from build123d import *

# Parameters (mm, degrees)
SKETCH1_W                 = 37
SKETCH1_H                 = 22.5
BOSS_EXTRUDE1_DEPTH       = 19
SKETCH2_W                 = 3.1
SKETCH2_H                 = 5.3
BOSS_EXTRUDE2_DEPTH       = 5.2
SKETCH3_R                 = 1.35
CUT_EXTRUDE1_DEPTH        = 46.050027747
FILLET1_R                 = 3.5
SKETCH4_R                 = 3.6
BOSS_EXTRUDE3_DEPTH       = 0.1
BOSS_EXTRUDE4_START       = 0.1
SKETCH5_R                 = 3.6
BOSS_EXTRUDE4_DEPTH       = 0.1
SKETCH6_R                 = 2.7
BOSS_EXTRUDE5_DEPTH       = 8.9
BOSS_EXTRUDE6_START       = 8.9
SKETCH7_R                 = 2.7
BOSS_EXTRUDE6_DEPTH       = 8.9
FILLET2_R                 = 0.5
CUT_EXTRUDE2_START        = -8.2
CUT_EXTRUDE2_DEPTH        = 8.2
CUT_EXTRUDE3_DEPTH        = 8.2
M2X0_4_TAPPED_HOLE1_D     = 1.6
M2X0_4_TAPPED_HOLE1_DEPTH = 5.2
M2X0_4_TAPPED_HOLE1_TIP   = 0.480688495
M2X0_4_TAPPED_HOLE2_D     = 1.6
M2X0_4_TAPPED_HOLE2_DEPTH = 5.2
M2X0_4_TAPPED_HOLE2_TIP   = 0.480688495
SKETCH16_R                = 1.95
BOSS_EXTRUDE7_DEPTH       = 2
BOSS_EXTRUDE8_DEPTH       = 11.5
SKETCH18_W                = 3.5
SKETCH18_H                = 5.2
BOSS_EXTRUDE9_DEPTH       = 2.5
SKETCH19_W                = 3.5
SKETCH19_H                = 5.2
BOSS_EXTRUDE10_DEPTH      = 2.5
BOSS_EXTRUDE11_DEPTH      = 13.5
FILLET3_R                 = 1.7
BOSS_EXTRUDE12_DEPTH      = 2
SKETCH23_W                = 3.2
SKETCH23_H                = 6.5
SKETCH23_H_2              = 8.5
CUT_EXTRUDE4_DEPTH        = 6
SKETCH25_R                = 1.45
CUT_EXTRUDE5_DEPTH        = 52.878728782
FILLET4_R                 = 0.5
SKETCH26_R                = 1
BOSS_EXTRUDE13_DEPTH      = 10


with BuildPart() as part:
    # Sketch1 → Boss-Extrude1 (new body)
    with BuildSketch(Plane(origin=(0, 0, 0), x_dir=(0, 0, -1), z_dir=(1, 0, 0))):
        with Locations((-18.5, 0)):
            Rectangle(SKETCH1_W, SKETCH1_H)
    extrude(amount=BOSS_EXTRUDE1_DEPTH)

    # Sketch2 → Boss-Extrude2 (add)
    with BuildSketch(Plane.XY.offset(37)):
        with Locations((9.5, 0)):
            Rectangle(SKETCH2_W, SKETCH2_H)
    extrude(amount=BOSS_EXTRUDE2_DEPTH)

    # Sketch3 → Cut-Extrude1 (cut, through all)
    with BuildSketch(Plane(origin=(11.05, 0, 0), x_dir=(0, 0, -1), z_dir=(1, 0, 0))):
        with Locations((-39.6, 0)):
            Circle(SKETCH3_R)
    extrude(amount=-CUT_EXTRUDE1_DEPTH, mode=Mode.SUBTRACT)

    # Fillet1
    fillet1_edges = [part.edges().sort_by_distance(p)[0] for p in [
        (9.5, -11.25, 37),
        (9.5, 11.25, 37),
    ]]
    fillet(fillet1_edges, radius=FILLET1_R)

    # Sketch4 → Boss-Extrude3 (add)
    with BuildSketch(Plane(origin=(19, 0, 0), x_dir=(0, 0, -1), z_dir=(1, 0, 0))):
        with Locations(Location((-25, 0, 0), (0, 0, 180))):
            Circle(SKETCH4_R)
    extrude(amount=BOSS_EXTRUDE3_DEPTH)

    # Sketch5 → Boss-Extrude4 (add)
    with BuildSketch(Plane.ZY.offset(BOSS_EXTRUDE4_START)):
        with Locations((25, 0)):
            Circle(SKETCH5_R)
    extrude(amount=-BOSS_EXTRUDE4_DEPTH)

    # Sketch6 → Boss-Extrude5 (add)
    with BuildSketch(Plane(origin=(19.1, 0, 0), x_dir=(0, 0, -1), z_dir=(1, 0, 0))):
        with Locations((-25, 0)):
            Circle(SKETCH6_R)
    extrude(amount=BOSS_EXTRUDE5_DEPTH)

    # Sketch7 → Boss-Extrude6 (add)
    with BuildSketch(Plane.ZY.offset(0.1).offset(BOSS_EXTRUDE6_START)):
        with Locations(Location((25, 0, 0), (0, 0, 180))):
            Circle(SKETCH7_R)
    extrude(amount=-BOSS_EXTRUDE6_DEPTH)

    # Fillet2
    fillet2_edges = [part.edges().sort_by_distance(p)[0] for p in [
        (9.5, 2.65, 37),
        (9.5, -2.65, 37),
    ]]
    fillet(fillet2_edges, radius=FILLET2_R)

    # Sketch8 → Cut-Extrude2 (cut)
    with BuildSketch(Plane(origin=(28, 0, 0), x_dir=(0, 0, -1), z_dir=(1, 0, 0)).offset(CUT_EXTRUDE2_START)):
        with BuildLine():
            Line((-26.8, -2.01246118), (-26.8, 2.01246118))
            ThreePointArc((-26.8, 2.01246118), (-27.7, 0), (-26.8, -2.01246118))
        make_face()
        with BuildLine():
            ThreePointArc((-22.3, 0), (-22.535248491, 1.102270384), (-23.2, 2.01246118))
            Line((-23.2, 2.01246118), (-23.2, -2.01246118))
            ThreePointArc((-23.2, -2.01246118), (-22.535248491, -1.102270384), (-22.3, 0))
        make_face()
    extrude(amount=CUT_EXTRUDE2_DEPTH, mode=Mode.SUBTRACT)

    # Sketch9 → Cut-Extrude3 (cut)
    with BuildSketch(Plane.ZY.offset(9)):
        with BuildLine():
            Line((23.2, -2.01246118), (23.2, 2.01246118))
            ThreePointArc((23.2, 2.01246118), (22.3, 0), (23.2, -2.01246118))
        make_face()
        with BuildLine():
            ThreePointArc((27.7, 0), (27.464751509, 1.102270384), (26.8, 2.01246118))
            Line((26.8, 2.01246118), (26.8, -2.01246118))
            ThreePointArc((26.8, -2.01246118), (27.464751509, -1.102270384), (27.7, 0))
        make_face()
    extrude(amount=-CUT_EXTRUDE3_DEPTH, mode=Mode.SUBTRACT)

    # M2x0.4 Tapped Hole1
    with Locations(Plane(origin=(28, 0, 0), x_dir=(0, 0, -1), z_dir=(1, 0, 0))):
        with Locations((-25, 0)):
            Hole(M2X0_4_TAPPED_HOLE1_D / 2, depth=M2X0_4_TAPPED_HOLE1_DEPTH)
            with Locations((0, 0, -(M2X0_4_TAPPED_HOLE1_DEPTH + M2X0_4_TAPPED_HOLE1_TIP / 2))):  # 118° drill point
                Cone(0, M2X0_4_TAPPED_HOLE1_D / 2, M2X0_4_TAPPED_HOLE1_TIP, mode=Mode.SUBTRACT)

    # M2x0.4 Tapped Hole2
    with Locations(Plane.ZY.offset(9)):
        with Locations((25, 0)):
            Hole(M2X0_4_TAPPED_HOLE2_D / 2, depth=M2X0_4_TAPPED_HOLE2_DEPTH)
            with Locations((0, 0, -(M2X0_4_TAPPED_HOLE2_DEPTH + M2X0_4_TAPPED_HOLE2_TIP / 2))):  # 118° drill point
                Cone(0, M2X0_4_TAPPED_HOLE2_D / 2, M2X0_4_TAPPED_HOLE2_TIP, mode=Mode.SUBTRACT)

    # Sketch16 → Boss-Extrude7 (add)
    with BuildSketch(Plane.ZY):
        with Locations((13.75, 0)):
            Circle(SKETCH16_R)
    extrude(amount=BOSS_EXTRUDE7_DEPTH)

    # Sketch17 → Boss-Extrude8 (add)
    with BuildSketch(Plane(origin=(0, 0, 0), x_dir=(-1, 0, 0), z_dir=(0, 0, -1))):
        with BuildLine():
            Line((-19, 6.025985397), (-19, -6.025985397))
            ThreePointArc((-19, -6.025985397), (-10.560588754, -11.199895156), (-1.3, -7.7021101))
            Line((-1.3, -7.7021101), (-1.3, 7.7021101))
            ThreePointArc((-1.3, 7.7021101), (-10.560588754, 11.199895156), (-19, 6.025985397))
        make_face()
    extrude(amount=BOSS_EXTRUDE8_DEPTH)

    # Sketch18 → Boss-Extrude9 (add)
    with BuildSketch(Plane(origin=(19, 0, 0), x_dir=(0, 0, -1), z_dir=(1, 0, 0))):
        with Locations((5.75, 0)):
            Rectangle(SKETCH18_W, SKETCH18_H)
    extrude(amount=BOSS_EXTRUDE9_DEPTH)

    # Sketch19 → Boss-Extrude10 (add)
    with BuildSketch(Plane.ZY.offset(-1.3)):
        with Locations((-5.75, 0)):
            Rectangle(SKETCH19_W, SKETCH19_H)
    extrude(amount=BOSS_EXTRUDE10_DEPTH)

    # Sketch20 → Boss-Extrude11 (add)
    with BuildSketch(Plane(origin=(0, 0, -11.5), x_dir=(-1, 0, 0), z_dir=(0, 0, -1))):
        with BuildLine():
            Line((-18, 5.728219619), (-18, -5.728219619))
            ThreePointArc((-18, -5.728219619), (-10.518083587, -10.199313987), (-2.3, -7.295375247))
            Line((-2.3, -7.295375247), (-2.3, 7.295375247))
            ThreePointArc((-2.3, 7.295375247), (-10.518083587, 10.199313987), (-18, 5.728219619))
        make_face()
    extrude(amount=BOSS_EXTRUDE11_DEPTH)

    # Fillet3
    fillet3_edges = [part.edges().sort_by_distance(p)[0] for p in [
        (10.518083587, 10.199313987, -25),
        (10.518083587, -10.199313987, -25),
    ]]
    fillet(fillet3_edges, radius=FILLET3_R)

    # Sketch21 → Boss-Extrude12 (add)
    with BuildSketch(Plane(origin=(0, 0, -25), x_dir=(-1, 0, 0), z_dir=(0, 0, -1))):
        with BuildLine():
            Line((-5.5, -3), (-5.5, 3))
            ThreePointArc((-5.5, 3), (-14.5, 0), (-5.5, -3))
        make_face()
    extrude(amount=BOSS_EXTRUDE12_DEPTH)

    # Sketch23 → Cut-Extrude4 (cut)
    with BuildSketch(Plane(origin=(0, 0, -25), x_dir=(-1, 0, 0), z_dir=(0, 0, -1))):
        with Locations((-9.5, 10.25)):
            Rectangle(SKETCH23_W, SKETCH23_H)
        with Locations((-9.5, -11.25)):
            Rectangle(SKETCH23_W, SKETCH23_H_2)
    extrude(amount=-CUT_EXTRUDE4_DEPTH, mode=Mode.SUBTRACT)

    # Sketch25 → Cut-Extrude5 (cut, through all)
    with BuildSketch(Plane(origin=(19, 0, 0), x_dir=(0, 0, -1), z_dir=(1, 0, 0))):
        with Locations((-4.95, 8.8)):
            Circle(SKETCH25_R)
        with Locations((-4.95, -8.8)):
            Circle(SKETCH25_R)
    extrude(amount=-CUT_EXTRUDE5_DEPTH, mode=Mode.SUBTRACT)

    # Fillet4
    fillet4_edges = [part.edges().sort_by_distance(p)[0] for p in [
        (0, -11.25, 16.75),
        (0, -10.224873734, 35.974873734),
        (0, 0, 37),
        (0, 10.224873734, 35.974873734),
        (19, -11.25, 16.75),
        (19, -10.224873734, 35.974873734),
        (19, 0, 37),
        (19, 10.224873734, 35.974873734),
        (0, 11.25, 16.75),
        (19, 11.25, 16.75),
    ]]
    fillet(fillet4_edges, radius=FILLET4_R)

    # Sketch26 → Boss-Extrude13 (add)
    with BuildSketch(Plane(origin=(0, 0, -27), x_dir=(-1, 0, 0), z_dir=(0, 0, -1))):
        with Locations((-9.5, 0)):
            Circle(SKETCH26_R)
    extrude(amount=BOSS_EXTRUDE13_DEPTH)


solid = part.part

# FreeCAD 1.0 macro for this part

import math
import FreeCAD as App
import Part
import Sketcher

V = App.Vector
Q = App.Units.Quantity


def edges_at(feature, points):
    """Names of the edges that pass closest to the given points."""
    edges = feature.Shape.Edges
    near = lambda p: min(range(len(edges)), key=lambda i: edges[i].distToShape(Part.Vertex(*p))[0])
    return sorted({f"Edge{near(p) + 1}" for p in points})

doc = App.newDocument("Part")
params = doc.addObject("Spreadsheet::Sheet", "Params")
for row, (alias, value) in enumerate([
    ("sketch1_height", "37 mm"),
    ("sketch1_width", "22.5 mm"),
    ("pad1_length", "19 mm"),
    ("sketch2_width", "3.1 mm"),
    ("sketch2_height", "5.3 mm"),
    ("pad2_length", "5.2 mm"),
    ("sketch3_diameter", "2.7 mm"),
    ("fillet_radius", "3.5 mm"),
    ("sketch4_diameter", "7.2 mm"),
    ("pad3_length", "0.1 mm"),
    ("sketch5_diameter", "7.2 mm"),
    ("pad4_length", "0.1 mm"),
    ("sketch6_diameter", "5.4 mm"),
    ("pad5_length", "8.9 mm"),
    ("sketch7_diameter", "5.4 mm"),
    ("pad6_length", "8.9 mm"),
    ("fillet2_radius", "0.5 mm"),
    ("sketch8_radius", "2.7 mm"),
    ("pocket2_length", "8.2 mm"),
    ("sketch9_radius", "2.7 mm"),
    ("pocket3_length", "8.2 mm"),
    ("sketch10_diameter", "1.6 mm"),
    ("hole_diameter", "1.6 mm"),
    ("hole_depth", "5.2 mm"),
    ("sketch11_diameter", "1.6 mm"),
    ("hole2_diameter", "1.6 mm"),
    ("hole2_depth", "5.2 mm"),
    ("sketch12_diameter", "3.9 mm"),
    ("pad7_length", "2 mm"),
    ("sketch13_radius", "11.25 mm"),
    ("pad8_length", "11.5 mm"),
    ("sketch14_width", "5.2 mm"),
    ("sketch14_height", "3.5 mm"),
    ("pad9_length", "2.5 mm"),
    ("sketch15_width", "5.2 mm"),
    ("sketch15_height", "3.5 mm"),
    ("pad10_length", "2.5 mm"),
    ("sketch16_radius", "10.25 mm"),
    ("pad11_length", "13.5 mm"),
    ("fillet3_radius", "1.7 mm"),
    ("sketch17_radius", "5 mm"),
    ("sketch17_height", "6 mm"),
    ("pad12_length", "2 mm"),
    ("sketch18_width", "3.2 mm"),
    ("sketch18_height", "6.5 mm"),
    ("sketch18_height2", "8.5 mm"),
    ("pocket4_length", "6 mm"),
    ("sketch19_diameter", "2.9 mm"),
    ("fillet4_radius", "0.5 mm"),
    ("sketch20_diameter", "2 mm"),
    ("pad13_length", "10 mm"),
], start=1):
    params.set(f"A{row}", alias)
    params.set(f"B{row}", "=" + value)
    params.setAlias(f"B{row}", alias)

body = doc.addObject("PartDesign::Body", "Body")

# Sketch on YZ plane
sketch1 = body.newObject("Sketcher::SketchObject", "Sketch")
sketch1.AttachmentSupport = (doc.getObject("YZ_Plane"), [""])
sketch1.MapMode = "FlatFace"
sketch1.addGeometry([
    Part.LineSegment(V(11.25, 37, 0), V(-11.25, 37, 0)),
    Part.LineSegment(V(-11.25, 37, 0), V(-11.25, 0, 0)),
    Part.LineSegment(V(-11.25, 0, 0), V(11.25, 0, 0)),
    Part.LineSegment(V(11.25, 0, 0), V(11.25, 37, 0)),
], False)
sketch1.addConstraint([
    Sketcher.Constraint("Coincident", 0, 2, 1, 1),
    Sketcher.Constraint("Coincident", 1, 2, 2, 1),
    Sketcher.Constraint("Coincident", 2, 2, 3, 1),
    Sketcher.Constraint("Coincident", 3, 2, 0, 1),
    Sketcher.Constraint("Horizontal", 0),
    Sketcher.Constraint("Vertical", 1),
    Sketcher.Constraint("Horizontal", 2),
    Sketcher.Constraint("Vertical", 3),
    Sketcher.Constraint("Symmetric", 1, 2, 2, 2, -1, 1),
    Sketcher.Constraint("DistanceY", 1, 2, 1, 1, Q("37 mm")),
    Sketcher.Constraint("DistanceX", 0, 2, 0, 1, Q("22.5 mm")),
])
sketch1.setExpression("Constraints[9]", "Params.sketch1_height")
sketch1.setExpression("Constraints[10]", "Params.sketch1_width")
pad1 = body.newObject("PartDesign::Pad", "Pad")
pad1.Profile = sketch1
pad1.setExpression("Length", "Params.pad1_length")

# Sketch on XY plane
sketch2 = body.newObject("Sketcher::SketchObject", "Sketch001")
sketch2.AttachmentSupport = (doc.getObject("XY_Plane"), [""])
sketch2.MapMode = "FlatFace"
sketch2.AttachmentOffset = App.Placement(V(0, 0, 37), App.Rotation())
sketch2.addGeometry([
    Part.LineSegment(V(7.95, 2.65, 0), V(7.95, -2.65, 0)),
    Part.LineSegment(V(7.95, -2.65, 0), V(11.05, -2.65, 0)),
    Part.LineSegment(V(11.05, -2.65, 0), V(11.05, 2.65, 0)),
    Part.LineSegment(V(11.05, 2.65, 0), V(7.95, 2.65, 0)),
], False)
sketch2.addConstraint([
    Sketcher.Constraint("Coincident", 0, 2, 1, 1),
    Sketcher.Constraint("Coincident", 1, 2, 2, 1),
    Sketcher.Constraint("Coincident", 2, 2, 3, 1),
    Sketcher.Constraint("Coincident", 3, 2, 0, 1),
    Sketcher.Constraint("Vertical", 0),
    Sketcher.Constraint("Horizontal", 1),
    Sketcher.Constraint("Vertical", 2),
    Sketcher.Constraint("Horizontal", 3),
    Sketcher.Constraint("DistanceX", 1, 1, 1, 2, Q("3.1 mm")),
    Sketcher.Constraint("DistanceY", 0, 2, 0, 1, Q("5.3 mm")),
    Sketcher.Constraint("DistanceX", -1, 1, 0, 2, Q("7.95 mm")),
    Sketcher.Constraint("DistanceY", 0, 2, -1, 1, Q("2.65 mm")),
])
sketch2.setExpression("Constraints[8]", "Params.sketch2_width")
sketch2.setExpression("Constraints[9]", "Params.sketch2_height")
pad2 = body.newObject("PartDesign::Pad", "Pad001")
pad2.Profile = sketch2
pad2.setExpression("Length", "Params.pad2_length")

# Sketch on YZ plane
sketch3 = body.newObject("Sketcher::SketchObject", "Sketch002")
sketch3.AttachmentSupport = (doc.getObject("YZ_Plane"), [""])
sketch3.MapMode = "FlatFace"
sketch3.AttachmentOffset = App.Placement(V(0, 0, 11.05), App.Rotation())
sketch3.addGeometry(Part.Circle(V(0, 39.6, 0), V(0, 0, 1), 1.35), False)
sketch3.addConstraint([
    Sketcher.Constraint("PointOnObject", 0, 3, -2),
    Sketcher.Constraint("Diameter", 0, Q("2.7 mm")),
    Sketcher.Constraint("DistanceY", -1, 1, 0, 3, Q("39.6 mm")),
])
sketch3.setExpression("Constraints[1]", "Params.sketch3_diameter")
pocket1 = body.newObject("PartDesign::Pocket", "Pocket")
pocket1.Profile = sketch3
pocket1.Type = "ThroughAll"
doc.recompute()

fillet = body.newObject("PartDesign::Fillet", "Fillet")
fillet.Base = (pocket1, edges_at(pocket1, [(9.5, -11.25, 37), (9.5, 11.25, 37)]))
fillet.setExpression("Radius", "Params.fillet_radius")

# Sketch on YZ plane
sketch4 = body.newObject("Sketcher::SketchObject", "Sketch003")
sketch4.AttachmentSupport = (doc.getObject("YZ_Plane"), [""])
sketch4.MapMode = "FlatFace"
sketch4.AttachmentOffset = App.Placement(V(0, 0, 19), App.Rotation())
sketch4.addGeometry(Part.Circle(V(0, 25, 0), V(0, 0, 1), 3.6), False)
sketch4.addConstraint([
    Sketcher.Constraint("PointOnObject", 0, 3, -2),
    Sketcher.Constraint("Diameter", 0, Q("7.2 mm")),
    Sketcher.Constraint("DistanceY", -1, 1, 0, 3, Q("25 mm")),
])
sketch4.setExpression("Constraints[1]", "Params.sketch4_diameter")
pad3 = body.newObject("PartDesign::Pad", "Pad002")
pad3.Profile = sketch4
pad3.setExpression("Length", "Params.pad3_length")

# Sketch on YZ plane
sketch5 = body.newObject("Sketcher::SketchObject", "Sketch004")
sketch5.AttachmentSupport = (doc.getObject("YZ_Plane"), [""])
sketch5.MapMode = "FlatFace"
sketch5.AttachmentOffset = App.Placement(V(0, 0, -0.1), App.Rotation())
sketch5.addGeometry(Part.Circle(V(0, 25, 0), V(0, 0, 1), 3.6), False)
sketch5.addConstraint([
    Sketcher.Constraint("PointOnObject", 0, 3, -2),
    Sketcher.Constraint("Diameter", 0, Q("7.2 mm")),
    Sketcher.Constraint("DistanceY", -1, 1, 0, 3, Q("25 mm")),
])
sketch5.setExpression("Constraints[1]", "Params.sketch5_diameter")
pad4 = body.newObject("PartDesign::Pad", "Pad003")
pad4.Profile = sketch5
pad4.setExpression("Length", "Params.pad4_length")

# Sketch on YZ plane
sketch6 = body.newObject("Sketcher::SketchObject", "Sketch005")
sketch6.AttachmentSupport = (doc.getObject("YZ_Plane"), [""])
sketch6.MapMode = "FlatFace"
sketch6.AttachmentOffset = App.Placement(V(0, 0, 19.1), App.Rotation())
sketch6.addGeometry(Part.Circle(V(0, 25, 0), V(0, 0, 1), 2.7), False)
sketch6.addConstraint([
    Sketcher.Constraint("PointOnObject", 0, 3, -2),
    Sketcher.Constraint("Diameter", 0, Q("5.4 mm")),
    Sketcher.Constraint("DistanceY", -1, 1, 0, 3, Q("25 mm")),
])
sketch6.setExpression("Constraints[1]", "Params.sketch6_diameter")
pad5 = body.newObject("PartDesign::Pad", "Pad004")
pad5.Profile = sketch6
pad5.setExpression("Length", "Params.pad5_length")

# Sketch on YZ plane
sketch7 = body.newObject("Sketcher::SketchObject", "Sketch006")
sketch7.AttachmentSupport = (doc.getObject("YZ_Plane"), [""])
sketch7.MapMode = "FlatFace"
sketch7.AttachmentOffset = App.Placement(V(0, 0, -9), App.Rotation())
sketch7.addGeometry(Part.Circle(V(0, 25, 0), V(0, 0, 1), 2.7), False)
sketch7.addConstraint([
    Sketcher.Constraint("PointOnObject", 0, 3, -2),
    Sketcher.Constraint("Diameter", 0, Q("5.4 mm")),
    Sketcher.Constraint("DistanceY", -1, 1, 0, 3, Q("25 mm")),
])
sketch7.setExpression("Constraints[1]", "Params.sketch7_diameter")
pad6 = body.newObject("PartDesign::Pad", "Pad005")
pad6.Profile = sketch7
pad6.setExpression("Length", "Params.pad6_length")
doc.recompute()

fillet2 = body.newObject("PartDesign::Fillet", "Fillet001")
fillet2.Base = (pad6, edges_at(pad6, [(9.5, 2.65, 37), (9.5, -2.65, 37)]))
fillet2.setExpression("Radius", "Params.fillet2_radius")

# Sketch on YZ plane
sketch8 = body.newObject("Sketcher::SketchObject", "Sketch007")
sketch8.AttachmentSupport = (doc.getObject("YZ_Plane"), [""])
sketch8.MapMode = "FlatFace"
sketch8.AttachmentOffset = App.Placement(V(0, 0, 19.8), App.Rotation())
sketch8.addGeometry([
    Part.LineSegment(V(-2.012461, 26.8, 0), V(2.012461, 26.8, 0)),  # 0
    Part.ArcOfCircle(Part.Circle(V(0, 25, 0), V(0, 0, 1), 2.7), math.radians(41.810315), math.radians(138.189685)),  # 1
    Part.ArcOfCircle(Part.Circle(V(0, 25, 0), V(0, 0, 1), 2.7), math.radians(-90), math.radians(-41.810315)),  # 2
    Part.LineSegment(V(2.012461, 23.2, 0), V(-2.012461, 23.2, 0)),  # 3
    Part.ArcOfCircle(Part.Circle(V(0, 25, 0), V(0, 0, 1), 2.7), math.radians(-138.189685), math.radians(-90)),  # 4
], False)
sketch8.addConstraint([
    Sketcher.Constraint("Coincident", 0, 1, 1, 2),
    Sketcher.Constraint("Coincident", 1, 1, 0, 2),
    Sketcher.Constraint("Coincident", 2, 2, 3, 1),
    Sketcher.Constraint("Coincident", 3, 2, 4, 1),
    Sketcher.Constraint("Tangent", 4, 2, 2, 1),
    Sketcher.Constraint("Horizontal", 0),
    Sketcher.Constraint("Horizontal", 3),
    Sketcher.Constraint("Coincident", 2, 3, 1, 3),
    Sketcher.Constraint("Equal", 1, 2),
    Sketcher.Constraint("Equal", 2, 4),
    Sketcher.Constraint("PointOnObject", 1, 3, -2),
    Sketcher.Constraint("PointOnObject", 4, 2, -2),
    Sketcher.Constraint("Vertical", 1, 1, 2, 2),
    Sketcher.Constraint("Radius", 1, Q("2.7 mm")),
    Sketcher.Constraint("DistanceY", -1, 1, 1, 3, Q("25 mm")),
    Sketcher.Constraint("DistanceY", -1, 1, 0, 1, Q("26.8 mm")),
])
sketch8.setExpression("Constraints[13]", "Params.sketch8_radius")
pocket2 = body.newObject("PartDesign::Pocket", "Pocket001")
pocket2.Profile = sketch8
pocket2.setExpression("Length", "Params.pocket2_length")
pocket2.Reversed = True

# Sketch on YZ plane
sketch9 = body.newObject("Sketcher::SketchObject", "Sketch008")
sketch9.AttachmentSupport = (doc.getObject("YZ_Plane"), [""])
sketch9.MapMode = "FlatFace"
sketch9.AttachmentOffset = App.Placement(V(0, 0, -9), App.Rotation())
sketch9.addGeometry([
    Part.LineSegment(V(-2.012461, 23.2, 0), V(2.012461, 23.2, 0)),  # 0
    Part.ArcOfCircle(Part.Circle(V(0, 25, 0), V(0, 0, 1), 2.7), math.radians(-138.189685), math.radians(-41.810315)),  # 1
    Part.ArcOfCircle(Part.Circle(V(0, 25, 0), V(0, 0, 1), 2.7), math.radians(41.810315), math.radians(90)),  # 2
    Part.LineSegment(V(2.012461, 26.8, 0), V(-2.012461, 26.8, 0)),  # 3
    Part.ArcOfCircle(Part.Circle(V(0, 25, 0), V(0, 0, 1), 2.7), math.radians(90), math.radians(138.189685)),  # 4
], False)
sketch9.addConstraint([
    Sketcher.Constraint("Coincident", 0, 1, 1, 1),
    Sketcher.Constraint("Coincident", 1, 2, 0, 2),
    Sketcher.Constraint("Coincident", 2, 1, 3, 1),
    Sketcher.Constraint("Coincident", 3, 2, 4, 2),
    Sketcher.Constraint("Tangent", 4, 1, 2, 2),
    Sketcher.Constraint("Horizontal", 0),
    Sketcher.Constraint("Horizontal", 3),
    Sketcher.Constraint("Coincident", 2, 3, 1, 3),
    Sketcher.Constraint("Equal", 1, 2),
    Sketcher.Constraint("Equal", 2, 4),
    Sketcher.Constraint("PointOnObject", 1, 3, -2),
    Sketcher.Constraint("PointOnObject", 4, 1, -2),
    Sketcher.Constraint("Vertical", 1, 2, 2, 1),
    Sketcher.Constraint("Radius", 1, Q("2.7 mm")),
    Sketcher.Constraint("DistanceY", -1, 1, 1, 3, Q("25 mm")),
    Sketcher.Constraint("DistanceY", -1, 1, 0, 1, Q("23.2 mm")),
])
sketch9.setExpression("Constraints[13]", "Params.sketch9_radius")
pocket3 = body.newObject("PartDesign::Pocket", "Pocket002")
pocket3.Profile = sketch9
pocket3.setExpression("Length", "Params.pocket3_length")
pocket3.Reversed = True

# Sketch on YZ plane
sketch10 = body.newObject("Sketcher::SketchObject", "Sketch009")
sketch10.AttachmentSupport = (doc.getObject("YZ_Plane"), [""])
sketch10.MapMode = "FlatFace"
sketch10.AttachmentOffset = App.Placement(V(0, 0, 28), App.Rotation())
sketch10.addGeometry(Part.Circle(V(0, 25, 0), V(0, 0, 1), 0.8), False)
sketch10.addConstraint([
    Sketcher.Constraint("PointOnObject", 0, 3, -2),
    Sketcher.Constraint("Diameter", 0, Q("1.6 mm")),
    Sketcher.Constraint("DistanceY", -1, 1, 0, 3, Q("25 mm")),
])
sketch10.setExpression("Constraints[1]", "Params.sketch10_diameter")
doc.recompute()
hole = body.newObject("PartDesign::Hole", "Hole")
hole.Profile = sketch10
hole.ThreadType = "None"
hole.setExpression("Diameter", "Params.hole_diameter")
hole.DepthType = "Dimension"
hole.setExpression("Depth", "Params.hole_depth")
hole.DrillPoint = "Angled"
hole.DrillPointAngle = 118

# Sketch on YZ plane
sketch11 = body.newObject("Sketcher::SketchObject", "Sketch010")
sketch11.AttachmentSupport = (doc.getObject("YZ_Plane"), [""])
sketch11.MapMode = "FlatFace"
sketch11.AttachmentOffset = App.Placement(V(0, 0, -9), App.Rotation())
sketch11.addGeometry(Part.Circle(V(0, 25, 0), V(0, 0, 1), 0.8), False)
sketch11.addConstraint([
    Sketcher.Constraint("PointOnObject", 0, 3, -2),
    Sketcher.Constraint("Diameter", 0, Q("1.6 mm")),
    Sketcher.Constraint("DistanceY", -1, 1, 0, 3, Q("25 mm")),
])
sketch11.setExpression("Constraints[1]", "Params.sketch11_diameter")
doc.recompute()
hole2 = body.newObject("PartDesign::Hole", "Hole001")
hole2.Profile = sketch11
hole2.ThreadType = "None"
hole2.setExpression("Diameter", "Params.hole2_diameter")
hole2.DepthType = "Dimension"
hole2.setExpression("Depth", "Params.hole2_depth")
hole2.DrillPoint = "Angled"
hole2.DrillPointAngle = 118
hole2.Reversed = True

# Sketch on YZ plane
sketch12 = body.newObject("Sketcher::SketchObject", "Sketch011")
sketch12.AttachmentSupport = (doc.getObject("YZ_Plane"), [""])
sketch12.MapMode = "FlatFace"
sketch12.addGeometry(Part.Circle(V(0, 13.75, 0), V(0, 0, 1), 1.95), False)
sketch12.addConstraint([
    Sketcher.Constraint("PointOnObject", 0, 3, -2),
    Sketcher.Constraint("Diameter", 0, Q("3.9 mm")),
    Sketcher.Constraint("DistanceY", -1, 1, 0, 3, Q("13.75 mm")),
])
sketch12.setExpression("Constraints[1]", "Params.sketch12_diameter")
pad7 = body.newObject("PartDesign::Pad", "Pad006")
pad7.Profile = sketch12
pad7.setExpression("Length", "Params.pad7_length")
pad7.Reversed = True

# Sketch on XY plane
sketch13 = body.newObject("Sketcher::SketchObject", "Sketch012")
sketch13.AttachmentSupport = (doc.getObject("XY_Plane"), [""])
sketch13.MapMode = "FlatFace"
sketch13.addGeometry([
    Part.LineSegment(V(19, 6.025985, 0), V(19, -6.025985, 0)),
    Part.ArcOfCircle(Part.Circle(V(9.5, 0, 0), V(0, 0, 1), 11.25), math.radians(-136.793326), math.radians(-32.387539)),
    Part.LineSegment(V(1.3, -7.70211, 0), V(1.3, 7.70211, 0)),
    Part.ArcOfCircle(Part.Circle(V(9.5, 0, 0), V(0, 0, 1), 11.25), math.radians(32.387539), math.radians(136.793326)),
], False)
sketch13.addConstraint([
    Sketcher.Constraint("Coincident", 0, 2, 1, 2),
    Sketcher.Constraint("Coincident", 1, 1, 2, 1),
    Sketcher.Constraint("Coincident", 2, 2, 3, 2),
    Sketcher.Constraint("Coincident", 3, 1, 0, 1),
    Sketcher.Constraint("Vertical", 0),
    Sketcher.Constraint("Vertical", 2),
    Sketcher.Constraint("Coincident", 3, 3, 1, 3),
    Sketcher.Constraint("Equal", 1, 3),
    Sketcher.Constraint("PointOnObject", 1, 3, -1),
    Sketcher.Constraint("Radius", 1, Q("11.25 mm")),
    Sketcher.Constraint("DistanceX", -1, 1, 0, 2, Q("19 mm")),
    Sketcher.Constraint("DistanceX", -1, 1, 1, 3, Q("9.5 mm")),
    Sketcher.Constraint("DistanceX", -1, 1, 1, 1, Q("1.3 mm")),
])
sketch13.setExpression("Constraints[9]", "Params.sketch13_radius")
pad8 = body.newObject("PartDesign::Pad", "Pad007")
pad8.Profile = sketch13
pad8.setExpression("Length", "Params.pad8_length")
pad8.Reversed = True

# Sketch on YZ plane
sketch14 = body.newObject("Sketcher::SketchObject", "Sketch013")
sketch14.AttachmentSupport = (doc.getObject("YZ_Plane"), [""])
sketch14.MapMode = "FlatFace"
sketch14.AttachmentOffset = App.Placement(V(0, 0, 19), App.Rotation())
sketch14.addGeometry([
    Part.LineSegment(V(2.6, -4, 0), V(-2.6, -4, 0)),
    Part.LineSegment(V(-2.6, -4, 0), V(-2.6, -7.5, 0)),
    Part.LineSegment(V(-2.6, -7.5, 0), V(2.6, -7.5, 0)),
    Part.LineSegment(V(2.6, -7.5, 0), V(2.6, -4, 0)),
], False)
sketch14.addConstraint([
    Sketcher.Constraint("Coincident", 0, 2, 1, 1),
    Sketcher.Constraint("Coincident", 1, 2, 2, 1),
    Sketcher.Constraint("Coincident", 2, 2, 3, 1),
    Sketcher.Constraint("Coincident", 3, 2, 0, 1),
    Sketcher.Constraint("Horizontal", 0),
    Sketcher.Constraint("Vertical", 1),
    Sketcher.Constraint("Horizontal", 2),
    Sketcher.Constraint("Vertical", 3),
    Sketcher.Constraint("DistanceX", 0, 2, 0, 1, Q("5.2 mm")),
    Sketcher.Constraint("DistanceY", 1, 2, 1, 1, Q("3.5 mm")),
    Sketcher.Constraint("DistanceY", 0, 2, -1, 1, Q("4 mm")),
    Sketcher.Constraint("DistanceX", 0, 2, -1, 1, Q("2.6 mm")),
])
sketch14.setExpression("Constraints[8]", "Params.sketch14_width")
sketch14.setExpression("Constraints[9]", "Params.sketch14_height")
pad9 = body.newObject("PartDesign::Pad", "Pad008")
pad9.Profile = sketch14
pad9.setExpression("Length", "Params.pad9_length")

# Sketch on YZ plane
sketch15 = body.newObject("Sketcher::SketchObject", "Sketch014")
sketch15.AttachmentSupport = (doc.getObject("YZ_Plane"), [""])
sketch15.MapMode = "FlatFace"
sketch15.AttachmentOffset = App.Placement(V(0, 0, 1.3), App.Rotation())
sketch15.addGeometry([
    Part.LineSegment(V(2.6, -7.5, 0), V(-2.6, -7.5, 0)),
    Part.LineSegment(V(-2.6, -7.5, 0), V(-2.6, -4, 0)),
    Part.LineSegment(V(-2.6, -4, 0), V(2.6, -4, 0)),
    Part.LineSegment(V(2.6, -4, 0), V(2.6, -7.5, 0)),
], False)
sketch15.addConstraint([
    Sketcher.Constraint("Coincident", 0, 2, 1, 1),
    Sketcher.Constraint("Coincident", 1, 2, 2, 1),
    Sketcher.Constraint("Coincident", 2, 2, 3, 1),
    Sketcher.Constraint("Coincident", 3, 2, 0, 1),
    Sketcher.Constraint("Horizontal", 0),
    Sketcher.Constraint("Vertical", 1),
    Sketcher.Constraint("Horizontal", 2),
    Sketcher.Constraint("Vertical", 3),
    Sketcher.Constraint("DistanceX", 0, 2, 0, 1, Q("5.2 mm")),
    Sketcher.Constraint("DistanceY", 1, 1, 1, 2, Q("3.5 mm")),
    Sketcher.Constraint("DistanceY", 1, 2, -1, 1, Q("4 mm")),
    Sketcher.Constraint("DistanceX", 0, 2, -1, 1, Q("2.6 mm")),
])
sketch15.setExpression("Constraints[8]", "Params.sketch15_width")
sketch15.setExpression("Constraints[9]", "Params.sketch15_height")
pad10 = body.newObject("PartDesign::Pad", "Pad009")
pad10.Profile = sketch15
pad10.setExpression("Length", "Params.pad10_length")
pad10.Reversed = True

# Sketch on XY plane
sketch16 = body.newObject("Sketcher::SketchObject", "Sketch015")
sketch16.AttachmentSupport = (doc.getObject("XY_Plane"), [""])
sketch16.MapMode = "FlatFace"
sketch16.AttachmentOffset = App.Placement(V(0, 0, -11.5), App.Rotation())
sketch16.addGeometry([
    Part.LineSegment(V(18, 5.72822, 0), V(18, -5.72822, 0)),
    Part.ArcOfCircle(Part.Circle(V(9.5, 0, 0), V(0, 0, 1), 10.25), math.radians(-134.623016), math.radians(-33.976353)),
    Part.LineSegment(V(2.3, -7.295375, 0), V(2.3, 7.295375, 0)),
    Part.ArcOfCircle(Part.Circle(V(9.5, 0, 0), V(0, 0, 1), 10.25), math.radians(33.976353), math.radians(134.623016)),
], False)
sketch16.addConstraint([
    Sketcher.Constraint("Coincident", 0, 2, 1, 2),
    Sketcher.Constraint("Coincident", 1, 1, 2, 1),
    Sketcher.Constraint("Coincident", 2, 2, 3, 2),
    Sketcher.Constraint("Coincident", 3, 1, 0, 1),
    Sketcher.Constraint("Vertical", 0),
    Sketcher.Constraint("Vertical", 2),
    Sketcher.Constraint("Coincident", 3, 3, 1, 3),
    Sketcher.Constraint("Equal", 1, 3),
    Sketcher.Constraint("PointOnObject", 1, 3, -1),
    Sketcher.Constraint("Radius", 1, Q("10.25 mm")),
    Sketcher.Constraint("DistanceX", -1, 1, 0, 2, Q("18 mm")),
    Sketcher.Constraint("DistanceX", -1, 1, 1, 3, Q("9.5 mm")),
    Sketcher.Constraint("DistanceX", -1, 1, 1, 1, Q("2.3 mm")),
])
sketch16.setExpression("Constraints[9]", "Params.sketch16_radius")
pad11 = body.newObject("PartDesign::Pad", "Pad010")
pad11.Profile = sketch16
pad11.setExpression("Length", "Params.pad11_length")
pad11.Reversed = True
doc.recompute()

fillet3 = body.newObject("PartDesign::Fillet", "Fillet002")
fillet3.Base = (pad11, edges_at(pad11, [(10.518, 10.199, -25), (10.518, -10.199, -25)]))
fillet3.setExpression("Radius", "Params.fillet3_radius")

# Sketch on XY plane
sketch17 = body.newObject("Sketcher::SketchObject", "Sketch016")
sketch17.AttachmentSupport = (doc.getObject("XY_Plane"), [""])
sketch17.MapMode = "FlatFace"
sketch17.AttachmentOffset = App.Placement(V(0, 0, -25), App.Rotation())
sketch17.addGeometry([
    Part.LineSegment(V(5.5, -3, 0), V(5.5, 3, 0)),
    Part.ArcOfCircle(Part.Circle(V(9.5, 0, 0), V(0, 0, 1), 5), math.radians(-143.130102), math.radians(143.130102)),
], False)
sketch17.addConstraint([
    Sketcher.Constraint("Coincident", 0, 1, 1, 1),
    Sketcher.Constraint("Coincident", 1, 2, 0, 2),
    Sketcher.Constraint("Vertical", 0),
    Sketcher.Constraint("PointOnObject", 1, 3, -1),
    Sketcher.Constraint("Radius", 1, Q("5 mm")),
    Sketcher.Constraint("DistanceY", 0, 1, 0, 2, Q("6 mm")),
    Sketcher.Constraint("DistanceX", -1, 1, 1, 3, Q("9.5 mm")),
])
sketch17.setExpression("Constraints[4]", "Params.sketch17_radius")
sketch17.setExpression("Constraints[5]", "Params.sketch17_height")
pad12 = body.newObject("PartDesign::Pad", "Pad011")
pad12.Profile = sketch17
pad12.setExpression("Length", "Params.pad12_length")
pad12.Reversed = True

# Sketch on XY plane
sketch18 = body.newObject("Sketcher::SketchObject", "Sketch017")
sketch18.AttachmentSupport = (doc.getObject("XY_Plane"), [""])
sketch18.MapMode = "FlatFace"
sketch18.AttachmentOffset = App.Placement(V(0, 0, -25), App.Rotation())
sketch18.addGeometry([
    Part.LineSegment(V(11.1, 13.5, 0), V(11.1, 7, 0)),  # 0
    Part.LineSegment(V(11.1, 7, 0), V(7.9, 7, 0)),  # 1
    Part.LineSegment(V(7.9, 7, 0), V(7.9, 13.5, 0)),  # 2
    Part.LineSegment(V(7.9, 13.5, 0), V(11.1, 13.5, 0)),  # 3
    Part.LineSegment(V(11.1, -7, 0), V(11.1, -15.5, 0)),  # 4
    Part.LineSegment(V(11.1, -15.5, 0), V(7.9, -15.5, 0)),  # 5
    Part.LineSegment(V(7.9, -15.5, 0), V(7.9, -7, 0)),  # 6
    Part.LineSegment(V(7.9, -7, 0), V(11.1, -7, 0)),  # 7
], False)
sketch18.addConstraint([
    Sketcher.Constraint("Coincident", 0, 2, 1, 1),
    Sketcher.Constraint("Coincident", 1, 2, 2, 1),
    Sketcher.Constraint("Coincident", 2, 2, 3, 1),
    Sketcher.Constraint("Coincident", 3, 2, 0, 1),
    Sketcher.Constraint("Coincident", 4, 2, 5, 1),
    Sketcher.Constraint("Coincident", 5, 2, 6, 1),
    Sketcher.Constraint("Coincident", 6, 2, 7, 1),
    Sketcher.Constraint("Coincident", 7, 2, 4, 1),
    Sketcher.Constraint("Vertical", 0),
    Sketcher.Constraint("Horizontal", 1),
    Sketcher.Constraint("Vertical", 2),
    Sketcher.Constraint("Horizontal", 3),
    Sketcher.Constraint("Vertical", 4),
    Sketcher.Constraint("Horizontal", 5),
    Sketcher.Constraint("Vertical", 6),
    Sketcher.Constraint("Horizontal", 7),
    Sketcher.Constraint("Symmetric", 1, 2, 6, 2, -1),
    Sketcher.Constraint("Vertical", 3, 2, 4, 2),
    Sketcher.Constraint("DistanceX", 1, 2, 1, 1, Q("3.2 mm")),
    Sketcher.Constraint("DistanceY", 0, 2, 0, 1, Q("6.5 mm")),
    Sketcher.Constraint("DistanceY", 4, 2, 4, 1, Q("8.5 mm")),
    Sketcher.Constraint("DistanceY", -1, 1, 0, 2, Q("7 mm")),
    Sketcher.Constraint("DistanceX", -1, 1, 0, 2, Q("11.1 mm")),
])
sketch18.setExpression("Constraints[18]", "Params.sketch18_width")
sketch18.setExpression("Constraints[19]", "Params.sketch18_height")
sketch18.setExpression("Constraints[20]", "Params.sketch18_height2")
pocket4 = body.newObject("PartDesign::Pocket", "Pocket003")
pocket4.Profile = sketch18
pocket4.setExpression("Length", "Params.pocket4_length")
pocket4.Reversed = True

# Sketch on YZ plane
sketch19 = body.newObject("Sketcher::SketchObject", "Sketch018")
sketch19.AttachmentSupport = (doc.getObject("YZ_Plane"), [""])
sketch19.MapMode = "FlatFace"
sketch19.AttachmentOffset = App.Placement(V(0, 0, 19), App.Rotation())
sketch19.addGeometry([
    Part.Circle(V(8.8, 4.95, 0), V(0, 0, 1), 1.45),
    Part.Circle(V(-8.8, 4.95, 0), V(0, 0, 1), 1.45),
], False)
sketch19.addConstraint([
    Sketcher.Constraint("Equal", 0, 1),
    Sketcher.Constraint("Symmetric", 0, 3, 1, 3, -2),
    Sketcher.Constraint("Diameter", 0, Q("2.9 mm")),
    Sketcher.Constraint("DistanceX", -1, 1, 0, 3, Q("8.8 mm")),
    Sketcher.Constraint("DistanceY", -1, 1, 0, 3, Q("4.95 mm")),
])
sketch19.setExpression("Constraints[2]", "Params.sketch19_diameter")
pocket5 = body.newObject("PartDesign::Pocket", "Pocket004")
pocket5.Profile = sketch19
pocket5.Type = "ThroughAll"
doc.recompute()

fillet4 = body.newObject("PartDesign::Fillet", "Fillet003")
fillet4.Base = (pocket5, edges_at(pocket5, [
    (0, -11.25, 16.75),
    (0, -10.225, 35.975),
    (0, 0, 37),
    (0, 10.225, 35.975),
    (19, -11.25, 16.75),
    (19, -10.225, 35.975),
    (19, 0, 37),
    (19, 10.225, 35.975),
    (0, 11.25, 16.75),
    (19, 11.25, 16.75),
]))
fillet4.setExpression("Radius", "Params.fillet4_radius")

# Sketch on XY plane
sketch20 = body.newObject("Sketcher::SketchObject", "Sketch019")
sketch20.AttachmentSupport = (doc.getObject("XY_Plane"), [""])
sketch20.MapMode = "FlatFace"
sketch20.AttachmentOffset = App.Placement(V(0, 0, -27), App.Rotation())
sketch20.addGeometry(Part.Circle(V(9.5, 0, 0), V(0, 0, 1), 1), False)
sketch20.addConstraint([
    Sketcher.Constraint("PointOnObject", 0, 3, -1),
    Sketcher.Constraint("Diameter", 0, Q("2 mm")),
    Sketcher.Constraint("DistanceX", -1, 1, 0, 3, Q("9.5 mm")),
])
sketch20.setExpression("Constraints[1]", "Params.sketch20_diameter")
pad13 = body.newObject("PartDesign::Pad", "Pad012")
pad13.Profile = sketch20
pad13.setExpression("Length", "Params.pad13_length")
pad13.Reversed = True

doc.recompute()
